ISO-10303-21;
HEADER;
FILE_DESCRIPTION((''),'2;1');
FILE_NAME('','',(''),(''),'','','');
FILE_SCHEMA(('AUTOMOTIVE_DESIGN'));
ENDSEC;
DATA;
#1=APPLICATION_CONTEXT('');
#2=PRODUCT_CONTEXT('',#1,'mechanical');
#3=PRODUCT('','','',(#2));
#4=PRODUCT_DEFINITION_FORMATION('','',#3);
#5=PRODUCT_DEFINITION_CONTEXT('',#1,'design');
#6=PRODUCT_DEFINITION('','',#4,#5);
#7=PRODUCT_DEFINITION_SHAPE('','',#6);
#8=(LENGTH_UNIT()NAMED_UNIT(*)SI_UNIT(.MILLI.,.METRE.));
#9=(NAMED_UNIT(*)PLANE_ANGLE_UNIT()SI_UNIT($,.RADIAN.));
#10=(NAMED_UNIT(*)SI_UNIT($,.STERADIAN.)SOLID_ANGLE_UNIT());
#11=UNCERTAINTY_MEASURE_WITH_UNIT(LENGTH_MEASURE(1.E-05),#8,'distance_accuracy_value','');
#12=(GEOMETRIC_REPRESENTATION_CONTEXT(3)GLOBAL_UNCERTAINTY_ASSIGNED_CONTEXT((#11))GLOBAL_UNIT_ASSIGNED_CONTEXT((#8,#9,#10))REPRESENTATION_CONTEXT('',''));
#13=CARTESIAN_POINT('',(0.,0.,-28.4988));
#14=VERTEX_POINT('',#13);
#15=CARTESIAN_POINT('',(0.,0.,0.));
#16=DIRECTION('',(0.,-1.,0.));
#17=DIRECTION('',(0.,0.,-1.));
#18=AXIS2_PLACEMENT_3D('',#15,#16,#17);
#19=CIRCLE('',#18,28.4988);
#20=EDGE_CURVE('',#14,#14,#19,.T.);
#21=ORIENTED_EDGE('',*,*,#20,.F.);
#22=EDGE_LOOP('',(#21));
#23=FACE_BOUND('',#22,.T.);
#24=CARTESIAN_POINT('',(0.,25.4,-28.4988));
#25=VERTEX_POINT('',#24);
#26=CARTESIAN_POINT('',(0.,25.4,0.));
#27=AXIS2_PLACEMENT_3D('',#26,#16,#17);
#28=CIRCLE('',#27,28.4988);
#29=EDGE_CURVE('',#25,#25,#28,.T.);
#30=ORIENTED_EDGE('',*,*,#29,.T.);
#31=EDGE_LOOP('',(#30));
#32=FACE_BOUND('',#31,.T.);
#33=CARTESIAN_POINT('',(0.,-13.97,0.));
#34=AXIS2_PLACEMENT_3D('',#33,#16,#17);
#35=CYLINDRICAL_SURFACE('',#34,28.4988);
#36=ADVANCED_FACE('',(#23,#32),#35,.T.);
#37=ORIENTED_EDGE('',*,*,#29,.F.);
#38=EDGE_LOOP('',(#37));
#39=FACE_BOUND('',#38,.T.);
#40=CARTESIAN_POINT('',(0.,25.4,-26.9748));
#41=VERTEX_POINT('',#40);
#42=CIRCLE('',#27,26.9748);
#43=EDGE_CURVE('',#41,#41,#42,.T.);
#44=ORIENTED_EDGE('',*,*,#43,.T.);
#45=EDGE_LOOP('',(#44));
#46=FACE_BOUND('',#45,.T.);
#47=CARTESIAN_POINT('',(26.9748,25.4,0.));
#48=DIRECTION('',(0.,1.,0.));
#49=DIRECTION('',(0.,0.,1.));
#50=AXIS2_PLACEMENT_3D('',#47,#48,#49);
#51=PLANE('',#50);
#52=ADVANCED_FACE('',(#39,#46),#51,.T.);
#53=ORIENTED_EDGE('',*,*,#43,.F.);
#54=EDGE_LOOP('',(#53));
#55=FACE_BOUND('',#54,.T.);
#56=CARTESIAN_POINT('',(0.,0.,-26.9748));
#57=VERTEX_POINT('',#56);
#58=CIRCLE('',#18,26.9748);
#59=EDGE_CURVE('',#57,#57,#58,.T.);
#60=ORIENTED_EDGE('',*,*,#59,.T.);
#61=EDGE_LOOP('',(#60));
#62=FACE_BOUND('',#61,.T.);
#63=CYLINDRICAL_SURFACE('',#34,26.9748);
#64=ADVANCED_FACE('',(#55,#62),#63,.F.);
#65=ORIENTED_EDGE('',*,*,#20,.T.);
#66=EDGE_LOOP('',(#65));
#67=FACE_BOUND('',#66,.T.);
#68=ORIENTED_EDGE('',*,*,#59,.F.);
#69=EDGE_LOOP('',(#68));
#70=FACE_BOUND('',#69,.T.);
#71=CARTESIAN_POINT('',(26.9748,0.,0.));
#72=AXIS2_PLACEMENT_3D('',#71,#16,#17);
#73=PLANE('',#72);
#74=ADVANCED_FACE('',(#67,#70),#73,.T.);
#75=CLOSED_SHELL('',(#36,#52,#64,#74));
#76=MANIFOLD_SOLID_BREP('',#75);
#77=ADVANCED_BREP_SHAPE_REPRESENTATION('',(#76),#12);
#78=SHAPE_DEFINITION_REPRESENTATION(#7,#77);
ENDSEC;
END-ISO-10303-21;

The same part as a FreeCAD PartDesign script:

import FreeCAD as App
import Part
import Sketcher
from FreeCAD import Vector
Q = App.Units.Quantity

doc = App.newDocument("Part")
body = doc.addObject("PartDesign::Body", "Body")

# Sketch on XY plane
sketch1 = body.newObject("Sketcher::SketchObject", "Sketch")
sketch1.AttachmentSupport = (doc.getObject("XY_Plane"), [""])
sketch1.MapMode = "FlatFace"
sketch1.addGeometry([
    Part.LineSegment(Vector(27, 25.4, 0), Vector(27, 0, 0)),
    Part.LineSegment(Vector(27, 0, 0), Vector(28.5, 0, 0)),
    Part.LineSegment(Vector(28.5, 0, 0), Vector(28.5, 25.4, 0)),
    Part.LineSegment(Vector(28.5, 25.4, 0), Vector(27, 25.4, 0)),
], False)
sketch1.addConstraint([
    Sketcher.Constraint("Coincident", 0, 2, 1, 1),
    Sketcher.Constraint("Coincident", 1, 2, 2, 1),
    Sketcher.Constraint("Coincident", 2, 2, 3, 1),
    Sketcher.Constraint("Coincident", 3, 2, 0, 1),
    Sketcher.Constraint("Vertical", 0),
    Sketcher.Constraint("Horizontal", 1),
    Sketcher.Constraint("Vertical", 2),
    Sketcher.Constraint("Horizontal", 3),
    Sketcher.Constraint("PointOnObject", 0, 2, -1),
    Sketcher.Constraint("DistanceY", 0, 2, 0, 1, Q("1 in")),
    Sketcher.Constraint("DistanceX", 1, 1, 1, 2, Q("0.06 in")),
    Sketcher.Constraint("DistanceX", -1, 1, 0, 2, Q("1.062 in")),
])
revolution = body.newObject("PartDesign::Revolution", "Revolution")
revolution.Profile = sketch1
revolution.ReferenceAxis = (sketch1, ["V_Axis"])
revolution.Angle = 360

doc.recompute()
